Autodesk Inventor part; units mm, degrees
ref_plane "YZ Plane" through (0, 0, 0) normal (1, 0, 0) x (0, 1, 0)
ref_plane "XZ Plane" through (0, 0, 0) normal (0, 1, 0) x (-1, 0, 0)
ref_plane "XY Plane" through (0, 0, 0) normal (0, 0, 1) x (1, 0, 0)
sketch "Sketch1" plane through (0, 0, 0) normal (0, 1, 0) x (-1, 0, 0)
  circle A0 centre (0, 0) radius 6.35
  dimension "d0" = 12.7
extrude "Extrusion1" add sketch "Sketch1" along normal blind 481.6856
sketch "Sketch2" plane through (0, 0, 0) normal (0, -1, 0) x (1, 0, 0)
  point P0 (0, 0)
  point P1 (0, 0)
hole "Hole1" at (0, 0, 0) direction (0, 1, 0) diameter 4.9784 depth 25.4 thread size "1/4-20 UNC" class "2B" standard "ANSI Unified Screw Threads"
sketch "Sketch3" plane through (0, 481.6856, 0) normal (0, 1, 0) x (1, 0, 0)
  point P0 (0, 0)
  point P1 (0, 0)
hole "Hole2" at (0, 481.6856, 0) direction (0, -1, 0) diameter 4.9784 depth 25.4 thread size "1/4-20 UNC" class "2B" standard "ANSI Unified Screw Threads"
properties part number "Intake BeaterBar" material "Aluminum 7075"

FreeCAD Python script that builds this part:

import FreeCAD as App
import Part
import Sketcher
Q = App.Units.Quantity

doc = App.newDocument("Part")
body = doc.addObject("PartDesign::Body", "Body")

# Sketch on XZ plane
sketch1 = doc.addObject("Sketcher::SketchObject", "Sketch")
body.addObject(sketch1)
sketch1.AttachmentSupport = (doc.XZ_Plane, [""])
sketch1.MapMode = "FlatFace"
sketch1.addGeometry(Part.Circle(App.Vector(0, 0, 0), App.Vector(0, 0, 1), 6), False)
sketch1.addConstraint([
    Sketcher.Constraint("Coincident", 0, 3, -1, 1),
    Sketcher.Constraint("Diameter", 0, Q("0.5 in")),
])
pad1 = doc.addObject("PartDesign::Pad", "Pad")
body.addObject(pad1)
pad1.Profile = sketch1
pad1.Length = Q("18.964 in")
pad1.Reversed = True

# Sketch on XZ plane
sketch2 = doc.addObject("Sketcher::SketchObject", "Sketch001")
body.addObject(sketch2)
sketch2.AttachmentSupport = (doc.XZ_Plane, [""])
sketch2.MapMode = "FlatFace"
sketch2.addGeometry(Part.Circle(App.Vector(0, 0, 0), App.Vector(0, 0, 1), 2.5), False)
sketch2.addConstraint([
    Sketcher.Constraint("Coincident", 0, 3, -1, 1),
    Sketcher.Constraint("Diameter", 0, Q("0.196 in")),
])
doc.recompute()
hole = doc.addObject("PartDesign::Hole", "Hole")
body.addObject(hole)
hole.Profile = sketch2
hole.ThreadType = "None"
hole.Diameter = Q("0.196 in")
hole.DepthType = "Dimension"
hole.Depth = Q("1 in")
hole.DrillPoint = "Flat"

# Sketch on XZ plane
sketch3 = doc.addObject("Sketcher::SketchObject", "Sketch002")
body.addObject(sketch3)
sketch3.AttachmentSupport = (doc.XZ_Plane, [""])
sketch3.MapMode = "FlatFace"
sketch3.AttachmentOffset = App.Placement(App.Vector(0, 0, -18.964 * 25.4), App.Rotation())
sketch3.addGeometry(Part.Circle(App.Vector(0, 0, 0), App.Vector(0, 0, 1), 2.5), False)
sketch3.addConstraint([
    Sketcher.Constraint("Coincident", 0, 3, -1, 1),
    Sketcher.Constraint("Diameter", 0, Q("0.196 in")),
])
doc.recompute()
hole2 = doc.addObject("PartDesign::Hole", "Hole001")
body.addObject(hole2)
hole2.Profile = sketch3
hole2.ThreadType = "None"
hole2.Diameter = Q("0.196 in")
hole2.DepthType = "Dimension"
hole2.Depth = Q("1 in")
hole2.DrillPoint = "Flat"
hole2.Reversed = True

doc.recompute()
